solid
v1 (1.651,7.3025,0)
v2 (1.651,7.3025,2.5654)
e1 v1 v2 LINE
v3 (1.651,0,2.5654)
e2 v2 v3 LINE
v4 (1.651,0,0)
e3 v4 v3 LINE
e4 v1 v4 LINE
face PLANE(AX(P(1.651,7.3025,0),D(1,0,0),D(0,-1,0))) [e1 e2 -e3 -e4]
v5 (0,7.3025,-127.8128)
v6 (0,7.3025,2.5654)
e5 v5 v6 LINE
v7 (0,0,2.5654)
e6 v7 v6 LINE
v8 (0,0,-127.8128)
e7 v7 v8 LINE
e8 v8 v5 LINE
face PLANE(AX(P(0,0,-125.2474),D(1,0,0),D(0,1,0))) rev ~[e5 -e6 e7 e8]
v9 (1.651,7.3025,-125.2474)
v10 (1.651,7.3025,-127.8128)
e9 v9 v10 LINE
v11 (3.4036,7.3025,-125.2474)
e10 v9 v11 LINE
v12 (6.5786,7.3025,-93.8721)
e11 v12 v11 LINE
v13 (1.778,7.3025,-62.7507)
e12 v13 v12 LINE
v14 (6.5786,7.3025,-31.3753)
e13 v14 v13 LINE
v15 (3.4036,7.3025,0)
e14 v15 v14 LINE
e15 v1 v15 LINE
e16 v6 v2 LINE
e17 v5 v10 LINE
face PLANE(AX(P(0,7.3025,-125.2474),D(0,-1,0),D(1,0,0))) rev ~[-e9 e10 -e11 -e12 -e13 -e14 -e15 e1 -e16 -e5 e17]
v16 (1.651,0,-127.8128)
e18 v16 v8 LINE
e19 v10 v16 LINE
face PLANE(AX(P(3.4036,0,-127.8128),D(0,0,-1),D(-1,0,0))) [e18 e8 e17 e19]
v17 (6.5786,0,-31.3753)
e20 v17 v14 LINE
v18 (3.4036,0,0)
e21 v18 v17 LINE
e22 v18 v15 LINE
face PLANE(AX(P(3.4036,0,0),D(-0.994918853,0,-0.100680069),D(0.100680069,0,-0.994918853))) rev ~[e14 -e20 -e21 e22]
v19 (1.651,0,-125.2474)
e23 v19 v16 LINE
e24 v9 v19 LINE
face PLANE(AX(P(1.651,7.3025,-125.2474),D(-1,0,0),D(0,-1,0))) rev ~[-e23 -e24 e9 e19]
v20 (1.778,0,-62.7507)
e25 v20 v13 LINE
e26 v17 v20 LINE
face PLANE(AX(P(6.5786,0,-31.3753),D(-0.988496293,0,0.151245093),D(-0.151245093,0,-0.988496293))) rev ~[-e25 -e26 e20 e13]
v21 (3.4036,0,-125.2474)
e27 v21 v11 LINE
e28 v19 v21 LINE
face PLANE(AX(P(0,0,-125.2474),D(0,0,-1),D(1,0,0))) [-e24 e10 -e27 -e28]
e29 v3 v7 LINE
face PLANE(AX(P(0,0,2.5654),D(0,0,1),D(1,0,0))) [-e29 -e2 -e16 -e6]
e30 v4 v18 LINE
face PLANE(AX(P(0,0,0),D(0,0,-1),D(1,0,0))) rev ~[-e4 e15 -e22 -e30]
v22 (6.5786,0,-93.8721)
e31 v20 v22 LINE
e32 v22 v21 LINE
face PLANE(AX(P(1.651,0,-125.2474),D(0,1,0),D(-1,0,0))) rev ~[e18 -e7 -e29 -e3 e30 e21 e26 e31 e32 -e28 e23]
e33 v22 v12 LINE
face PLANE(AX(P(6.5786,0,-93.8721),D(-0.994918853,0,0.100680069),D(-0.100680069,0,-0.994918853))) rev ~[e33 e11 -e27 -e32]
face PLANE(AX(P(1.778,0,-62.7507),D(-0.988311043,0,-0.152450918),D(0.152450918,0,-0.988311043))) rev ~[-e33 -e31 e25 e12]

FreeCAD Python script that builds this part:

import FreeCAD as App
import Part
import Sketcher
Q = App.Units.Quantity


def add_polygon(sketch, points):
    """Adds a closed chain of lines whose ends are joined by coincident constraints."""
    first, n = sketch.GeometryCount, len(points)
    for a, b in zip(points, points[1:] + points[:1]):
        sketch.addGeometry(Part.LineSegment(App.Vector(*a, 0), App.Vector(*b, 0)), False)
    for i in range(n):
        sketch.addConstraint(Sketcher.Constraint("Coincident", first + i, 2, first + (i + 1) % n, 1))

doc = App.newDocument("Part")
body = doc.addObject("PartDesign::Body", "Body")

sketch1 = body.newObject("Sketcher::SketchObject", "Sketch")
sketch1.AttachmentSupport = (doc.getObject("XZ_Plane"), [""])
sketch1.MapMode = "FlatFace"
add_polygon(sketch1, [(0, -125.2), (0, 0), (3.4, 0), (6.6, -31.4), (1.8, -62.8), (6.6, -93.9), (3.4, -125.2)])
sketch1.addConstraint(Sketcher.Constraint("Vertical", 0))
sketch1.addConstraint(Sketcher.Constraint("Horizontal", 1))
sketch1.addConstraint(Sketcher.Constraint("Horizontal", 6))
sketch1.addConstraint(Sketcher.Constraint("Coincident", 0, 2, -1, 1))
sketch1.addConstraint(Sketcher.Constraint("Vertical", 2, 2, 4, 2))
sketch1.addConstraint(Sketcher.Constraint("Vertical", 1, 2, 5, 2))
sketch1.addConstraint(Sketcher.Constraint("Equal", 2, 5))
sketch1.addConstraint(Sketcher.Constraint("DistanceX", 1, 1, 1, 2, Q("0.134 in")))
sketch1.addConstraint(Sketcher.Constraint("DistanceY", 0, 1, 0, 2, Q("4.931 in")))
sketch1.addConstraint(Sketcher.Constraint("DistanceX", 1, 2, 2, 2, Q("0.125 in")))
sketch1.addConstraint(Sketcher.Constraint("DistanceY", 3, 2, -1, 1, Q("2.4705 in")))
sketch1.addConstraint(Sketcher.Constraint("Angle", 3, Q("-98.699 deg")))
sketch1.addConstraint(Sketcher.Constraint("DistanceY", 2, 2, -1, 1, 31.3753))
pad1 = body.newObject("PartDesign::Pad", "Pad")
pad1.Profile = sketch1
pad1.Length = Q("0.2875 in")
pad1.Reversed = True

sketch2 = body.newObject("Sketcher::SketchObject", "Sketch001")
sketch2.AttachmentSupport = (doc.getObject("XY_Plane"), [""])
sketch2.MapMode = "FlatFace"
add_polygon(sketch2, [(0, 7.3), (0, 0), (1.7, 0), (1.7, 7.3)])
sketch2.addConstraint(Sketcher.Constraint("Vertical", 0))
sketch2.addConstraint(Sketcher.Constraint("Horizontal", 1))
sketch2.addConstraint(Sketcher.Constraint("Vertical", 2))
sketch2.addConstraint(Sketcher.Constraint("Horizontal", 3))
sketch2.addConstraint(Sketcher.Constraint("Coincident", 0, 2, -1, 1))
sketch2.addConstraint(Sketcher.Constraint("DistanceX", 1, 1, 1, 2, Q("0.065 in")))
sketch2.addConstraint(Sketcher.Constraint("DistanceY", 0, 2, 0, 1, Q("0.2875 in")))
pad2 = body.newObject("PartDesign::Pad", "Pad001")
pad2.Profile = sketch2
pad2.Length = Q("0.101 in")

sketch3 = body.newObject("Sketcher::SketchObject", "Sketch002")
sketch3.AttachmentSupport = (doc.getObject("XY_Plane"), [""])
sketch3.MapMode = "FlatFace"
sketch3.AttachmentOffset = App.Placement(App.Vector(0, 0, -4.931 * 25.4), App.Rotation())
add_polygon(sketch3, [(1.7, 7.3), (1.7, 0), (0, 0), (0, 7.3)])
sketch3.addConstraint(Sketcher.Constraint("Vertical", 0))
sketch3.addConstraint(Sketcher.Constraint("Horizontal", 1))
sketch3.addConstraint(Sketcher.Constraint("Vertical", 2))
sketch3.addConstraint(Sketcher.Constraint("Horizontal", 3))
sketch3.addConstraint(Sketcher.Constraint("Coincident", 1, 2, -1, 1))
sketch3.addConstraint(Sketcher.Constraint("DistanceX", 1, 2, 1, 1, Q("0.065 in")))
sketch3.addConstraint(Sketcher.Constraint("DistanceY", 0, 2, 0, 1, Q("0.2875 in")))
pad3 = body.newObject("PartDesign::Pad", "Pad002")
pad3.Profile = sketch3
pad3.Length = Q("0.101 in")
pad3.Reversed = True

doc.recompute()
